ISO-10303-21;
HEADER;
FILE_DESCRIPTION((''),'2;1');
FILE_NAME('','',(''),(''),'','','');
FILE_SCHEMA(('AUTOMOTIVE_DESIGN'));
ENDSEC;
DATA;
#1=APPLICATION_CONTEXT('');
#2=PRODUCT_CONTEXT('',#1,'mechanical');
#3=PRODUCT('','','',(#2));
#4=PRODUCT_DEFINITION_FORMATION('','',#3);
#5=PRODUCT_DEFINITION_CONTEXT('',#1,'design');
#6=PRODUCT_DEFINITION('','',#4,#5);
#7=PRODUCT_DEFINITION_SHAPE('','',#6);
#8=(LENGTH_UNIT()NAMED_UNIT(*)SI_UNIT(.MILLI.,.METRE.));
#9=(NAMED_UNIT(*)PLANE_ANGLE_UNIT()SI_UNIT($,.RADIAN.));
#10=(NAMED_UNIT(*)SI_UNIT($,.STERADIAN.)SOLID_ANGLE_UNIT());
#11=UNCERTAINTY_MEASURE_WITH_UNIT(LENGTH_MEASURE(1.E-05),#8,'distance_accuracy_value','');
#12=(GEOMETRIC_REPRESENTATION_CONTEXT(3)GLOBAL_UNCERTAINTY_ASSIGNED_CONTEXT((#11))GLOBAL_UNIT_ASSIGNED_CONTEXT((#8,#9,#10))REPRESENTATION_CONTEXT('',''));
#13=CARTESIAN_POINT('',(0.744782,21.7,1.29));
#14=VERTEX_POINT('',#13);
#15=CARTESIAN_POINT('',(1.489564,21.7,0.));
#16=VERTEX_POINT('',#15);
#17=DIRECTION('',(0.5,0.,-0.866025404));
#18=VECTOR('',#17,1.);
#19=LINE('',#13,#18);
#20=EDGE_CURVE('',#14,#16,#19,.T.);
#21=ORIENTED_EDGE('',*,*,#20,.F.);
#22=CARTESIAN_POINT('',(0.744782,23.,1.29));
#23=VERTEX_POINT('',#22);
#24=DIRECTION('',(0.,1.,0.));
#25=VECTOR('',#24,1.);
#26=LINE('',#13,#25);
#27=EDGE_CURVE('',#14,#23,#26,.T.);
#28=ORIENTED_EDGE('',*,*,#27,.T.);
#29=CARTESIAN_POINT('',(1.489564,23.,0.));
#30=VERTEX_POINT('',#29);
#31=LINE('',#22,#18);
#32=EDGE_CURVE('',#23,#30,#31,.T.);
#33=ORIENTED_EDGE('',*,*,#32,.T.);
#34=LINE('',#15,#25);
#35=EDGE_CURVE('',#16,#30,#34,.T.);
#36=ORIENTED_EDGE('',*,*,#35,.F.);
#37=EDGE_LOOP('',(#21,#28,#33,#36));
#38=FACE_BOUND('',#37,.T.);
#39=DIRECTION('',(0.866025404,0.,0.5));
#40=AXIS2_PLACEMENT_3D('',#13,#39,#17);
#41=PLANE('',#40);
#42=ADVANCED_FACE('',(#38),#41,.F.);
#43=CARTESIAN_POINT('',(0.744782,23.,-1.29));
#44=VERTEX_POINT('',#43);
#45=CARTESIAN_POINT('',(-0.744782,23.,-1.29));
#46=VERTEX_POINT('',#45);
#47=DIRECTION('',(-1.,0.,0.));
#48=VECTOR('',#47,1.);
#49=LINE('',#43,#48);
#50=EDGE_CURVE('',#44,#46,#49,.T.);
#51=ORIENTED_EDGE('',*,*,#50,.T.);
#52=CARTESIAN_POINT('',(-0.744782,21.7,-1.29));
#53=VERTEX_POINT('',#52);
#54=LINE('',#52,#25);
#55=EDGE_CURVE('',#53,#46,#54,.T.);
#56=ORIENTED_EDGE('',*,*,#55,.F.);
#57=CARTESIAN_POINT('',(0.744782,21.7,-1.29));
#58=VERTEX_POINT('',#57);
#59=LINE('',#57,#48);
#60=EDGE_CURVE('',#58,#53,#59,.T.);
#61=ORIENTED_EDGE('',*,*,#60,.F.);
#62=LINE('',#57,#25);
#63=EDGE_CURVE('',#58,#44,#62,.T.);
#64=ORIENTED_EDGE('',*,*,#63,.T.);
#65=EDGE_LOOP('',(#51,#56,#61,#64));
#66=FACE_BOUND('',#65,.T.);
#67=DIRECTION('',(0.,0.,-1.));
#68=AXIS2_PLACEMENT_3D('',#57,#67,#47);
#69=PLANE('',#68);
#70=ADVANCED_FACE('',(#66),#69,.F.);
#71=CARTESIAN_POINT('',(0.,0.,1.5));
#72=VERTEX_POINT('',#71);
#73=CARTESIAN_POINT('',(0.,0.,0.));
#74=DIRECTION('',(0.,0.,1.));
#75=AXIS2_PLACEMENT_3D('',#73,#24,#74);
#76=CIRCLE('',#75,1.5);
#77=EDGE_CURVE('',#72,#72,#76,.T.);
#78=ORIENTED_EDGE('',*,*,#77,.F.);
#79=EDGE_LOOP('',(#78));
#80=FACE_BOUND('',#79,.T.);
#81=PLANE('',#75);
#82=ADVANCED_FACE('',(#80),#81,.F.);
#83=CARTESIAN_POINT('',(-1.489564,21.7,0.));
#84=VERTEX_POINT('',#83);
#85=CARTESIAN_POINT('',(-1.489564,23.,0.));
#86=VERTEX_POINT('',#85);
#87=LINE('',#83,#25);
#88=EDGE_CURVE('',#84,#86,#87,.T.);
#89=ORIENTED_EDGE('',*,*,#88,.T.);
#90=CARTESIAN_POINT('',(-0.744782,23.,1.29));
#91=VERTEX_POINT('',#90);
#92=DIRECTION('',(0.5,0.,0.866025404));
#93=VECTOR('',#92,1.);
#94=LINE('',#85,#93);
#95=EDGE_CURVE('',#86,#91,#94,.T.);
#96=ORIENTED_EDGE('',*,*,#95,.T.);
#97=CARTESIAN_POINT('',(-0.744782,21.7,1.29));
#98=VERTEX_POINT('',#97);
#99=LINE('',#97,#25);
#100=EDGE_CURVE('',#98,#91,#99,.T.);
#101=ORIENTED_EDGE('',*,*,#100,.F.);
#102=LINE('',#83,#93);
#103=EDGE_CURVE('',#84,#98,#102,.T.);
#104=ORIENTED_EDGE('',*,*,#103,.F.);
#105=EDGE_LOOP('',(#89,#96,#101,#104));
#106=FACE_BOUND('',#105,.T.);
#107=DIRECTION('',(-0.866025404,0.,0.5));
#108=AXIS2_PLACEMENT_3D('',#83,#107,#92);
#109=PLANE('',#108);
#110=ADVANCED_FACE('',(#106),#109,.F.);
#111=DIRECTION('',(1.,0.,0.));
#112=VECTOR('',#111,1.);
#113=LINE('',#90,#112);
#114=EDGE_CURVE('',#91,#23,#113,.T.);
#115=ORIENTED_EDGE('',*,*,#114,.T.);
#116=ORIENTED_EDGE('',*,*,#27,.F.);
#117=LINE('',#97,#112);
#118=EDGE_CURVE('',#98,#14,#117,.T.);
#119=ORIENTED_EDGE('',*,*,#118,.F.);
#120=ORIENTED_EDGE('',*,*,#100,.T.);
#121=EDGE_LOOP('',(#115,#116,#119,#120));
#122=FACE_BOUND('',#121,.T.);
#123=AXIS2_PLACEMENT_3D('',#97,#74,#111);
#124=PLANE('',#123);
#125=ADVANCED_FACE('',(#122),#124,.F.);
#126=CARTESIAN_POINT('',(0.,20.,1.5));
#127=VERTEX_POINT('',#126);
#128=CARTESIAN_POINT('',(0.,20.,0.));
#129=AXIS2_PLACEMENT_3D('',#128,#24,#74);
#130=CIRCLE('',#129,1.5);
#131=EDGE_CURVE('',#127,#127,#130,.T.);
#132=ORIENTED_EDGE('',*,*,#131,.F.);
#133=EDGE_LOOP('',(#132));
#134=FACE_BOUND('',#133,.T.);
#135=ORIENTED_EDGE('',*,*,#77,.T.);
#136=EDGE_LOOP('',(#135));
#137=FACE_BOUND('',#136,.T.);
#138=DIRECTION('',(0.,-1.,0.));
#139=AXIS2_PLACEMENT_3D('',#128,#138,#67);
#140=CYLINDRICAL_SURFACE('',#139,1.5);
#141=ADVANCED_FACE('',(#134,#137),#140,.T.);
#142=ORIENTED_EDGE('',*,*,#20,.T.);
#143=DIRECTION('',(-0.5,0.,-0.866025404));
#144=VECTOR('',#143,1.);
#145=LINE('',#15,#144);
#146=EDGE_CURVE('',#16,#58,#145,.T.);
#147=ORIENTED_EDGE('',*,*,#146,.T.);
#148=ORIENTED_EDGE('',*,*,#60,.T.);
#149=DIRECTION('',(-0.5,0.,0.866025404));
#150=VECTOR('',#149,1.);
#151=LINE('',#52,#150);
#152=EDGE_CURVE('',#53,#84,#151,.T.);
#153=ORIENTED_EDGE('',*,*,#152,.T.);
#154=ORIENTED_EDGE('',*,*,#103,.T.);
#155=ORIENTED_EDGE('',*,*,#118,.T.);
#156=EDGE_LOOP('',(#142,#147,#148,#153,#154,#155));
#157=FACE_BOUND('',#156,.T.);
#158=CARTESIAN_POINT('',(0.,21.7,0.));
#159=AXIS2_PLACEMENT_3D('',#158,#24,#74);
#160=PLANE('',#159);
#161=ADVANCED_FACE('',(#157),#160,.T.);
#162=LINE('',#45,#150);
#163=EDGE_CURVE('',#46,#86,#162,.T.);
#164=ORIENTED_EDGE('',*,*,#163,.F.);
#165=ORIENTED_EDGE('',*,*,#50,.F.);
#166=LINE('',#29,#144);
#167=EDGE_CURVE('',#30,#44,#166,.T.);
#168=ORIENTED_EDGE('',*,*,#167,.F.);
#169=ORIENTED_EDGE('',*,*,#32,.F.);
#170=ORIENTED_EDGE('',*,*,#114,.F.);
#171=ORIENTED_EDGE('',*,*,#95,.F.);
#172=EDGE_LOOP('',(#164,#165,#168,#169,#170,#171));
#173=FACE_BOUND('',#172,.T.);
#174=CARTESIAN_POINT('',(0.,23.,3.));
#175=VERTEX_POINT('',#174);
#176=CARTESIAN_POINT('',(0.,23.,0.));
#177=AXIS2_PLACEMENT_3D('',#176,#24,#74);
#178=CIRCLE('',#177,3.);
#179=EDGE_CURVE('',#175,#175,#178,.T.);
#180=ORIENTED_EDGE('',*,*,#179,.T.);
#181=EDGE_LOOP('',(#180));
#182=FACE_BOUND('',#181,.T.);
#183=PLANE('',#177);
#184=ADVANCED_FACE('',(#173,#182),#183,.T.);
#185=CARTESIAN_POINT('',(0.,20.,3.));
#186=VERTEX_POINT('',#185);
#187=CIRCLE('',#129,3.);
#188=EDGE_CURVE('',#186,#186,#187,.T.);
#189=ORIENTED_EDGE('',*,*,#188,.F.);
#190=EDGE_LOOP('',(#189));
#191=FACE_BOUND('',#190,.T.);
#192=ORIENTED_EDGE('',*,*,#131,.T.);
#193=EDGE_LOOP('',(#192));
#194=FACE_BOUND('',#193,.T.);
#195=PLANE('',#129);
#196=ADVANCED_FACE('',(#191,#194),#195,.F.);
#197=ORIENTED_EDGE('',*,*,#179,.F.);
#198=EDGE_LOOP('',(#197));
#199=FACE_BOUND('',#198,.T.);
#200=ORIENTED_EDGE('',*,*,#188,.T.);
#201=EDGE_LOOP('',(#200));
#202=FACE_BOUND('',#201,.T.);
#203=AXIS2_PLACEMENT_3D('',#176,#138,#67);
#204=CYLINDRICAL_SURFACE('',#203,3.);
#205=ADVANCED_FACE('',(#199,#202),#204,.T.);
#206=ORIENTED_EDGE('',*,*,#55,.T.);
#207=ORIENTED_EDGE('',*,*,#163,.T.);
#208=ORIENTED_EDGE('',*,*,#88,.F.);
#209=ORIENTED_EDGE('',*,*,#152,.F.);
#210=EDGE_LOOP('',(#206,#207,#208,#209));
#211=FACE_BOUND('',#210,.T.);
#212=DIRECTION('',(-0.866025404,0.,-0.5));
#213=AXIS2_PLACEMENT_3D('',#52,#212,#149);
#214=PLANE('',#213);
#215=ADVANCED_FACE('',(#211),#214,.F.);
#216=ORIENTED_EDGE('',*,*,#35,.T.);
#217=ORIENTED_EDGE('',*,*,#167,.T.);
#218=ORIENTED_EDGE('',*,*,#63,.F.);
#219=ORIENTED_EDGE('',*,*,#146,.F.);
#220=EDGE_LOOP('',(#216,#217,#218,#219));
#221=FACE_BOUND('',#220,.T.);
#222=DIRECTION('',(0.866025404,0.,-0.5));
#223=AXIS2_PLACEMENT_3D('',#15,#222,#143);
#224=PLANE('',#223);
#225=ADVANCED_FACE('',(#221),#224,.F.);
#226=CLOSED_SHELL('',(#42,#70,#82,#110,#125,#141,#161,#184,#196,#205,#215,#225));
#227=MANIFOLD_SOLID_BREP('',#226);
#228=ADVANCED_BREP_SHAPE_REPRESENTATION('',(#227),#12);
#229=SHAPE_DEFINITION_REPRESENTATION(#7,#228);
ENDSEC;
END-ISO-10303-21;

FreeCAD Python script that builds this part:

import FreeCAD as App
import Part
import Sketcher
from FreeCAD import Vector
Q = App.Units.Quantity


def add_polygon(sketch, points):
    """Adds a closed chain of lines whose ends are joined by coincident constraints."""
    first, n = sketch.GeometryCount, len(points)
    for a, b in zip(points, points[1:] + points[:1]):
        sketch.addGeometry(Part.LineSegment(App.Vector(*a, 0), App.Vector(*b, 0)), False)
    for i in range(n):
        sketch.addConstraint(Sketcher.Constraint("Coincident", first + i, 2, first + (i + 1) % n, 1))

doc = App.newDocument("Part")
params = doc.addObject("Spreadsheet::Sheet", "Params")
for row, (alias, value) in enumerate([
    ("sketch1_diameter", "3 mm"),
    ("pad1_length", "20 mm"),
    ("sketch2_diameter", "6 mm"),
    ("pad2_length", "3 mm"),
    ("pocket1_length", "1.3 mm"),
], start=1):
    params.set(f"A{row}", alias)
    params.set(f"B{row}", "=" + value)
    params.setAlias(f"B{row}", alias)

body = doc.addObject("PartDesign::Body", "Body")

# Sketch on XZ plane
sketch1 = doc.addObject("Sketcher::SketchObject", "Sketch")
body.addObject(sketch1)
sketch1.AttachmentSupport = (doc.XZ_Plane, [""])
sketch1.MapMode = "FlatFace"
sketch1.addGeometry(Part.Circle(Vector(0, 0, 0), Vector(0, 0, 1), 1.5), False)
sketch1.addConstraint([
    Sketcher.Constraint("Coincident", 0, 3, -1, 1),
    Sketcher.Constraint("Diameter", 0, 3.0),
])
sketch1.setExpression("Constraints[1]", "Params.sketch1_diameter")
pad1 = doc.addObject("PartDesign::Pad", "Pad")
body.addObject(pad1)
pad1.Profile = sketch1
pad1.setExpression("Length", "Params.pad1_length")
pad1.Reversed = True

# Sketch on XZ plane
sketch2 = doc.addObject("Sketcher::SketchObject", "Sketch001")
body.addObject(sketch2)
sketch2.AttachmentSupport = (doc.XZ_Plane, [""])
sketch2.MapMode = "FlatFace"
sketch2.AttachmentOffset = App.Placement(Vector(0, 0, -20), App.Rotation())
sketch2.addGeometry(Part.Circle(Vector(0, 0, 0), Vector(0, 0, 1), 3), False)
sketch2.addConstraint([
    Sketcher.Constraint("Coincident", 0, 3, -1, 1),
    Sketcher.Constraint("Diameter", 0, 6.0),
])
sketch2.setExpression("Constraints[1]", "Params.sketch2_diameter")
pad2 = doc.addObject("PartDesign::Pad", "Pad001")
body.addObject(pad2)
pad2.Profile = sketch2
pad2.setExpression("Length", "Params.pad2_length")
pad2.Reversed = True

# Sketch on XZ plane
sketch3 = doc.addObject("Sketcher::SketchObject", "Sketch002")
body.addObject(sketch3)
sketch3.AttachmentSupport = (doc.XZ_Plane, [""])
sketch3.MapMode = "FlatFace"
sketch3.AttachmentOffset = App.Placement(Vector(0, 0, -23), App.Rotation())
add_polygon(sketch3, [(1.5, 0), (0.7, -1.3), (-0.7, -1.3), (-1.5, 0), (-0.7, 1.3), (0.7, 1.3)])  # lines 0-5
sketch3.addConstraint([
    Sketcher.Constraint("Horizontal", 1),
    Sketcher.Constraint("Horizontal", 4),
    Sketcher.Constraint("Symmetric", 0, 2, 3, 2, -1, 1),
    Sketcher.Constraint("Symmetric", 2, 2, 5, 2, -1, 1),
    Sketcher.Constraint("PointOnObject", 2, 2, -1),
    Sketcher.Constraint("Parallel", 2, 5),
    Sketcher.Constraint("Vertical", 1, 2, 3, 2),
    Sketcher.Constraint("Angle", 0, Q("-120 deg")),
    Sketcher.Constraint("DistanceY", 0, 2, -1, 1, 1.29),
    Sketcher.Constraint("DistanceX", 1, 2, 1, 1, 1.489564),
])
pocket1 = doc.addObject("PartDesign::Pocket", "Pocket")
body.addObject(pocket1)
pocket1.Profile = sketch3
pocket1.setExpression("Length", "Params.pocket1_length")
pocket1.Reversed = True

doc.recompute()
